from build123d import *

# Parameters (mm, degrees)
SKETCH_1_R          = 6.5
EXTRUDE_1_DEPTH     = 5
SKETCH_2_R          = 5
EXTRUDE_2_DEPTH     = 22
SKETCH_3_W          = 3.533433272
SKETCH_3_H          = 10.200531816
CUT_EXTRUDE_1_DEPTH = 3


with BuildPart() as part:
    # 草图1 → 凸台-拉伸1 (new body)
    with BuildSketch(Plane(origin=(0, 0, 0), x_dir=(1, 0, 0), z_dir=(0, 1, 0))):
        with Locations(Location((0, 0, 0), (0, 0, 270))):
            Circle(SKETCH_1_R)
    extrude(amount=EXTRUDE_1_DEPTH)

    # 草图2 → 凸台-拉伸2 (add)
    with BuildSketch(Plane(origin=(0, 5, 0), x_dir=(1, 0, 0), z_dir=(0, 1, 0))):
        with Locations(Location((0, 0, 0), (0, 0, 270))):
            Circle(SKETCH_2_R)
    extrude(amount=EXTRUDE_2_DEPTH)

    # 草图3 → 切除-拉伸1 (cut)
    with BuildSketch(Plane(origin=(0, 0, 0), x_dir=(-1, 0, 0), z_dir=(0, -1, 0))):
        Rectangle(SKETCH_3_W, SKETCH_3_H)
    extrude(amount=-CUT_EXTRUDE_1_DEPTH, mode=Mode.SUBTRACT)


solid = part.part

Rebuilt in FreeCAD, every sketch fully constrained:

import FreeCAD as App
import Part
import Sketcher
from FreeCAD import Vector
Q = App.Units.Quantity

doc = App.newDocument("Part")
body = doc.addObject("PartDesign::Body", "Body")

# Sketch on XZ plane
sketch1 = body.newObject("Sketcher::SketchObject", "Sketch")
sketch1.AttachmentSupport = (doc.getObject("XZ_Plane"), [""])
sketch1.MapMode = "FlatFace"
sketch1.addGeometry(Part.Circle(Vector(0, 0, 0), Vector(0, 0, 1), 6), False)
sketch1.addConstraint([
    Sketcher.Constraint("Coincident", 0, 3, -1, 1),
    Sketcher.Constraint("Diameter", 0, Q("13 mm")),
])
pad1 = body.newObject("PartDesign::Pad", "Pad")
pad1.Profile = sketch1
pad1.Length = 5
pad1.Reversed = True

# Sketch on XZ plane
sketch2 = body.newObject("Sketcher::SketchObject", "Sketch001")
sketch2.AttachmentSupport = (doc.getObject("XZ_Plane"), [""])
sketch2.MapMode = "FlatFace"
sketch2.AttachmentOffset = App.Placement(Vector(0, 0, -5), App.Rotation())
sketch2.addGeometry(Part.Circle(Vector(0, 0, 0), Vector(0, 0, 1), 5), False)
sketch2.addConstraint([
    Sketcher.Constraint("Coincident", 0, 3, -1, 1),
    Sketcher.Constraint("Diameter", 0, Q("10 mm")),
])
pad2 = body.newObject("PartDesign::Pad", "Pad001")
pad2.Profile = sketch2
pad2.Length = 22
pad2.Reversed = True

# Sketch on XZ plane
sketch3 = body.newObject("Sketcher::SketchObject", "Sketch002")
sketch3.AttachmentSupport = (doc.getObject("XZ_Plane"), [""])
sketch3.MapMode = "FlatFace"
sketch3.addGeometry([
    Part.LineSegment(Vector(1.8, -5.1, 0), Vector(1.8, 5.1, 0)),
    Part.LineSegment(Vector(1.8, 5.1, 0), Vector(-1.8, 5.1, 0)),
    Part.LineSegment(Vector(-1.8, 5.1, 0), Vector(-1.8, -5.1, 0)),
    Part.LineSegment(Vector(-1.8, -5.1, 0), Vector(1.8, -5.1, 0)),
], False)
sketch3.addConstraint([
    Sketcher.Constraint("Coincident", 0, 2, 1, 1),
    Sketcher.Constraint("Coincident", 1, 2, 2, 1),
    Sketcher.Constraint("Coincident", 2, 2, 3, 1),
    Sketcher.Constraint("Coincident", 3, 2, 0, 1),
    Sketcher.Constraint("Vertical", 0),
    Sketcher.Constraint("Horizontal", 1),
    Sketcher.Constraint("Vertical", 2),
    Sketcher.Constraint("Horizontal", 3),
    Sketcher.Constraint("Symmetric", 0, 2, 2, 2, -1, 1),
    Sketcher.Constraint("DistanceY", 0, 1, 0, 2, Q("10.200532 mm")),
    Sketcher.Constraint("DistanceX", 1, 2, 1, 1, Q("3.533433 mm")),
])
pocket1 = body.newObject("PartDesign::Pocket", "Pocket")
pocket1.Profile = sketch3
pocket1.Length = 3

doc.recompute()
